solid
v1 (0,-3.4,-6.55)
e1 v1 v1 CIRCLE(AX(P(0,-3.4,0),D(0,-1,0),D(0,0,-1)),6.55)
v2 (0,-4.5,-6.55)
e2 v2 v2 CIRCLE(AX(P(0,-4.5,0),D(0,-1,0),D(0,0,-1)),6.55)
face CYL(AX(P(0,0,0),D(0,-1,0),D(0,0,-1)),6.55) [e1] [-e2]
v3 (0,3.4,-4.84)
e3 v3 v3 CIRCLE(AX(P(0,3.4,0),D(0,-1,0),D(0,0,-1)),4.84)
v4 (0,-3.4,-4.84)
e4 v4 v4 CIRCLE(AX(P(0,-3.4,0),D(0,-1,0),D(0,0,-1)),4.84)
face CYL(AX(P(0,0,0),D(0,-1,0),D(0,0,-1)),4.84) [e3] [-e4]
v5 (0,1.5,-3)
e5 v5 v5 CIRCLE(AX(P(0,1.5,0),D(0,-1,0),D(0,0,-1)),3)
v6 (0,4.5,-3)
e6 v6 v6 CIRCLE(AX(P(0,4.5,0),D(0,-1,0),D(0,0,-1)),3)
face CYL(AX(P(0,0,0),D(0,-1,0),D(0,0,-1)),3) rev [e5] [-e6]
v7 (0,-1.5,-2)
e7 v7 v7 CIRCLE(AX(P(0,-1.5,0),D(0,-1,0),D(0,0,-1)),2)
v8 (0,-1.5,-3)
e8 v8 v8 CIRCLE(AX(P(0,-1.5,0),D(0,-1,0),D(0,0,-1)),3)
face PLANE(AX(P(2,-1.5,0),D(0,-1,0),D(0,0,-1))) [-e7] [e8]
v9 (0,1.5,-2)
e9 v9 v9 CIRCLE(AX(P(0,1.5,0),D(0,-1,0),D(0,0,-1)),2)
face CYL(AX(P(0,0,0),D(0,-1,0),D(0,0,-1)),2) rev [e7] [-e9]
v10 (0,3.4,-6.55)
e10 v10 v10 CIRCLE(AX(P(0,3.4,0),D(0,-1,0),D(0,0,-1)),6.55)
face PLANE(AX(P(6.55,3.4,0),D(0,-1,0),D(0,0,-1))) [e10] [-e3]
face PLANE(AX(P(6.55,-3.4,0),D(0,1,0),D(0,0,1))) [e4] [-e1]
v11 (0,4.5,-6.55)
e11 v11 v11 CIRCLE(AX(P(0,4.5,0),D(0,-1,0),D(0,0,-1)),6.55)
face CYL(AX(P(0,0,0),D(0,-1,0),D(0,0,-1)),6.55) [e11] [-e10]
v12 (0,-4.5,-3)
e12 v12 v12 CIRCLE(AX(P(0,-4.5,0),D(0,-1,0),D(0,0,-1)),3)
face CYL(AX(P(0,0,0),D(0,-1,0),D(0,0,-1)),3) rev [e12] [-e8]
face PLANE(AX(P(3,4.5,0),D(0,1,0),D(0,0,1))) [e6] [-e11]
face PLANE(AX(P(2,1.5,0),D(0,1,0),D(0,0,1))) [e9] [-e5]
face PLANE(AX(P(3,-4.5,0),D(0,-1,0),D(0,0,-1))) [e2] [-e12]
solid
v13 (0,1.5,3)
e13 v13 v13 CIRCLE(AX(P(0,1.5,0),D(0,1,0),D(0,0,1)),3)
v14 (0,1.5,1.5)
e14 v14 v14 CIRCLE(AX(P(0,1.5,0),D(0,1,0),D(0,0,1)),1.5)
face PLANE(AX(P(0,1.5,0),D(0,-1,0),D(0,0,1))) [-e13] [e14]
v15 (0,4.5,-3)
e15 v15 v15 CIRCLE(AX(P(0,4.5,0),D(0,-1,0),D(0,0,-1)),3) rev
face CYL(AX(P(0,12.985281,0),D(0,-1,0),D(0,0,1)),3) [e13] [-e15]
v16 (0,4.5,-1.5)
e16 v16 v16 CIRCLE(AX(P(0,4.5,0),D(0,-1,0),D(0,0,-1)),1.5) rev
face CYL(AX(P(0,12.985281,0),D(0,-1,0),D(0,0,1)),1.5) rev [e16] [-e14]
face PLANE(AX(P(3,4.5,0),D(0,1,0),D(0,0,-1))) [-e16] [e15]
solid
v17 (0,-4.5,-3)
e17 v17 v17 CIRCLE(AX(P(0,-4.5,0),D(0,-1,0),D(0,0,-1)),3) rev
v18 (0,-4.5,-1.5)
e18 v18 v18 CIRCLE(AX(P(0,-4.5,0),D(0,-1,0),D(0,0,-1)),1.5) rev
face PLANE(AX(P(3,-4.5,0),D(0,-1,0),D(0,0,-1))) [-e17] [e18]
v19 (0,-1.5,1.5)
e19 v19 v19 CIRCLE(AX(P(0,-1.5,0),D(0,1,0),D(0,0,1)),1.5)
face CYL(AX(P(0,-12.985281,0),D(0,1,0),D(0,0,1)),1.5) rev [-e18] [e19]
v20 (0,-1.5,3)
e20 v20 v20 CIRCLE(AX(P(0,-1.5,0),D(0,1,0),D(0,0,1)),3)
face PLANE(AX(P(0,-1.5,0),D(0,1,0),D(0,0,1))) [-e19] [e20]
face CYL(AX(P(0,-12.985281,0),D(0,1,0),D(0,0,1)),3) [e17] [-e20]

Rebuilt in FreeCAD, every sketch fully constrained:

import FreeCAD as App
import Part
import Sketcher

V = App.Vector
Q = App.Units.Quantity


def add_polygon(sketch, points):
    """Adds a closed chain of lines whose ends are joined by coincident constraints."""
    first, n = sketch.GeometryCount, len(points)
    for a, b in zip(points, points[1:] + points[:1]):
        sketch.addGeometry(Part.LineSegment(App.Vector(*a, 0), App.Vector(*b, 0)), False)
    for i in range(n):
        sketch.addConstraint(Sketcher.Constraint("Coincident", first + i, 2, first + (i + 1) % n, 1))

doc = App.newDocument("Part")
params = doc.addObject("Spreadsheet::Sheet", "Params")
for row, (alias, value) in enumerate([
    ("sketch1_width", "1 mm"),
    ("sketch1_height", "3 mm"),
    ("sketch1_height2", "1.1 mm"),
    ("sketch1_width2", "3.55 mm"),
    ("sketch1_width3", "1.71 mm"),
    ("revolution_angle", "360 deg"),
    ("sketch2_diameter", "6 mm"),
    ("sketch2_diameter2", "3 mm"),
    ("pad1_length", "3 mm"),
], start=1):
    params.set(f"A{row}", alias)
    params.set(f"B{row}", "=" + value)
    params.setAlias(f"B{row}", alias)

body = doc.addObject("PartDesign::Body", "Body")

# Sketch on XY plane
sketch1 = body.newObject("Sketcher::SketchObject", "Sketch")
sketch1.AttachmentSupport = (doc.getObject("XY_Plane"), [""])
sketch1.MapMode = "FlatFace"
add_polygon(sketch1, [(3, 1.5), (2, 1.5), (2, -1.5), (3, -1.5), (3, -4.5), (6.55, -4.5), (6.55, -3.4), (4.84, -3.4), (4.84, 3.4), (6.55, 3.4), (6.55, 4.5), (3, 4.5)])  # lines 0-11
sketch1.addConstraint([
    Sketcher.Constraint("Horizontal", 0),
    Sketcher.Constraint("Vertical", 1),
    Sketcher.Constraint("Horizontal", 2),
    Sketcher.Constraint("Vertical", 3),
    Sketcher.Constraint("Horizontal", 4),
    Sketcher.Constraint("Vertical", 5),
    Sketcher.Constraint("Horizontal", 6),
    Sketcher.Constraint("Vertical", 7),
    Sketcher.Constraint("Horizontal", 8),
    Sketcher.Constraint("Vertical", 9),
    Sketcher.Constraint("Horizontal", 10),
    Sketcher.Constraint("Vertical", 11),
    Sketcher.Constraint("Symmetric", 5, 2, 8, 2, -1),
    Sketcher.Constraint("Symmetric", 3, 2, 10, 2, -1),
    Sketcher.Constraint("Equal", 1, 3),
    Sketcher.Constraint("Equal", 3, 11),
    Sketcher.Constraint("DistanceX", 0, 2, 0, 1, Q("1 mm")),
    Sketcher.Constraint("DistanceY", 1, 2, 1, 1, Q("3 mm")),
    Sketcher.Constraint("DistanceY", 5, 1, 5, 2, Q("1.1 mm")),
    Sketcher.Constraint("DistanceX", -1, 1, 0, 2, Q("2 mm")),
    Sketcher.Constraint("DistanceX", 4, 1, 4, 2, Q("3.55 mm")),
    Sketcher.Constraint("DistanceX", 6, 2, 6, 1, Q("1.71 mm")),
])
sketch1.setExpression("Constraints[28]", "Params.sketch1_width")
sketch1.setExpression("Constraints[29]", "Params.sketch1_height")
sketch1.setExpression("Constraints[30]", "Params.sketch1_height2")
sketch1.setExpression("Constraints[32]", "Params.sketch1_width2")
sketch1.setExpression("Constraints[33]", "Params.sketch1_width3")
revolution = body.newObject("PartDesign::Revolution", "Revolution")
revolution.Profile = sketch1
revolution.ReferenceAxis = (sketch1, ["V_Axis"])
revolution.setExpression("Angle", "Params.revolution_angle")
body2 = doc.addObject("PartDesign::Body", "Body001")

# Sketch on XZ plane
sketch2 = body2.newObject("Sketcher::SketchObject", "Sketch001")
sketch2.AttachmentSupport = (doc.getObject("XZ_Plane001"), [""])
sketch2.MapMode = "FlatFace"
sketch2.AttachmentOffset = App.Placement(V(0, 0, 1.5), App.Rotation())
sketch2.addGeometry([
    Part.Circle(V(0, 0, 0), V(0, 0, 1), 3),
    Part.Circle(V(0, 0, 0), V(0, 0, 1), 1.5),
], False)
sketch2.addConstraint([
    Sketcher.Constraint("Coincident", 0, 3, -1, 1),
    Sketcher.Constraint("Coincident", 1, 3, -1, 1),
    Sketcher.Constraint("Diameter", 0, Q("6 mm")),
    Sketcher.Constraint("Diameter", 1, Q("3 mm")),
])
sketch2.setExpression("Constraints[2]", "Params.sketch2_diameter")
sketch2.setExpression("Constraints[3]", "Params.sketch2_diameter2")
pad1 = body2.newObject("PartDesign::Pad", "Pad")
pad1.Profile = sketch2
pad1.setExpression("Length", "Params.pad1_length")
body3 = doc.addObject("PartDesign::Body", "Body002")
doc.recompute()

mirroring = doc.addObject("Part::Mirroring", "Mirroring")
mirroring.Source = body2
mirroring.Base = V(0, 0, 0)
mirroring.Normal = V(0, 1, 0)
body3.BaseFeature = mirroring
doc.recompute()
mirroring.Visibility = False

doc.recompute()
